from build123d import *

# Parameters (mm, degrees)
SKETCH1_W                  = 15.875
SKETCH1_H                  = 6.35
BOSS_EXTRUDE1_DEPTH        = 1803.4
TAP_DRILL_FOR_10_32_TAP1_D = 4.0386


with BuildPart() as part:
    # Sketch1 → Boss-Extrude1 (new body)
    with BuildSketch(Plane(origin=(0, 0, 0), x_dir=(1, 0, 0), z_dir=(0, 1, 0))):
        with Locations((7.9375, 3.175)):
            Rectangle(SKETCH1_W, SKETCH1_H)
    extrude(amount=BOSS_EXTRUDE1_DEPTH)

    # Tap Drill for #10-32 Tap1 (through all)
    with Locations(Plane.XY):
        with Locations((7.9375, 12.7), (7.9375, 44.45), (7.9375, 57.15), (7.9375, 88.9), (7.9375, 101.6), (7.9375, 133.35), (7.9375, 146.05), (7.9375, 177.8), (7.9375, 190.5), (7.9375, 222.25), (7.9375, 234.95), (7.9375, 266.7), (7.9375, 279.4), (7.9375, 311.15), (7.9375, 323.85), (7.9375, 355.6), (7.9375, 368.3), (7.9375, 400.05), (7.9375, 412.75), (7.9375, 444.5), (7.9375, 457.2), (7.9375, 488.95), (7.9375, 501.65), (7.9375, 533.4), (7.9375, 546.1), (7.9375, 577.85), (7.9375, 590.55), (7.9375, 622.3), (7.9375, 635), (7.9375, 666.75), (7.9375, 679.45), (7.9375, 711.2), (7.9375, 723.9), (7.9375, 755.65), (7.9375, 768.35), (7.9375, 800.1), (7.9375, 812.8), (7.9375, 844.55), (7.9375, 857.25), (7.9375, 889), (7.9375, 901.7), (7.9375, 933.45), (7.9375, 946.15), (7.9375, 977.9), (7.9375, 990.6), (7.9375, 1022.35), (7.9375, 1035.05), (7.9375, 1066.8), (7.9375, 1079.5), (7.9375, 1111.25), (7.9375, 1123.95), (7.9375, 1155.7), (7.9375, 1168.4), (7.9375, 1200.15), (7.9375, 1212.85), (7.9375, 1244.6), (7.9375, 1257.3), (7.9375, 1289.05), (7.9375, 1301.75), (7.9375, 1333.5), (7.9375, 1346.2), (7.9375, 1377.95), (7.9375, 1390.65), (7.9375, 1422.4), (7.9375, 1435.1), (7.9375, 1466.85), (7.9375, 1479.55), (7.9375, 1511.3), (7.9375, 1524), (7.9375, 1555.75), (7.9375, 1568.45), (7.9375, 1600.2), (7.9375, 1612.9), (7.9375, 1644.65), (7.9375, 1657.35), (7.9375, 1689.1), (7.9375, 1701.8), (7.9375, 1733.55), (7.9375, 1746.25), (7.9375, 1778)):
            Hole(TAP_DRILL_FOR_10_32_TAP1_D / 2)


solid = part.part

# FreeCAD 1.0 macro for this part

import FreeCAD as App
import Part
import Sketcher
from FreeCAD import Vector
Q = App.Units.Quantity


def add_polygon(sketch, points):
    """Adds a closed chain of lines whose ends are joined by coincident constraints."""
    first, n = sketch.GeometryCount, len(points)
    for a, b in zip(points, points[1:] + points[:1]):
        sketch.addGeometry(Part.LineSegment(App.Vector(*a, 0), App.Vector(*b, 0)), False)
    for i in range(n):
        sketch.addConstraint(Sketcher.Constraint("Coincident", first + i, 2, first + (i + 1) % n, 1))

doc = App.newDocument("Part")
body = doc.addObject("PartDesign::Body", "Body")

# Sketch on XZ plane
sketch1 = body.newObject("Sketcher::SketchObject", "Sketch")
sketch1.AttachmentSupport = (doc.getObject("XZ_Plane"), [""])
sketch1.MapMode = "FlatFace"
add_polygon(sketch1, [(0, -6.35), (0, 0), (15.875, 0), (15.875, -6.35)])  # lines 0-3
sketch1.addConstraint(Sketcher.Constraint("Vertical", 0))
sketch1.addConstraint(Sketcher.Constraint("Horizontal", 1))
sketch1.addConstraint(Sketcher.Constraint("Vertical", 2))
sketch1.addConstraint(Sketcher.Constraint("Horizontal", 3))
sketch1.addConstraint(Sketcher.Constraint("Coincident", 0, 2, -1, 1))
sketch1.addConstraint(Sketcher.Constraint("DistanceY", 0, 1, 0, 2, Q("0.25 in")))
sketch1.addConstraint(Sketcher.Constraint("DistanceX", 1, 1, 1, 2, Q("0.625 in")))
pad1 = body.newObject("PartDesign::Pad", "Pad")
pad1.Profile = sketch1
pad1.Length = Q("71 in")
pad1.Reversed = True

# Sketch on XY plane
sketch2 = body.newObject("Sketcher::SketchObject", "Sketch001")
sketch2.AttachmentSupport = (doc.getObject("XY_Plane"), [""])
sketch2.MapMode = "FlatFace"
sketch2.addGeometry(Part.Circle(Vector(7.9375, 12.7, 0), Vector(0, 0, 1), 2.0193), False)
sketch2.addGeometry(Part.Circle(Vector(7.9375, 44.45, 0), Vector(0, 0, 1), 2.0193), False)
sketch2.addGeometry(Part.Circle(Vector(7.9375, 57.15, 0), Vector(0, 0, 1), 2.0193), False)
sketch2.addGeometry(Part.Circle(Vector(7.9375, 88.9, 0), Vector(0, 0, 1), 2.0193), False)
sketch2.addGeometry(Part.Circle(Vector(7.9375, 101.6, 0), Vector(0, 0, 1), 2.0193), False)
sketch2.addGeometry(Part.Circle(Vector(7.9375, 133.35, 0), Vector(0, 0, 1), 2.0193), False)
sketch2.addGeometry(Part.Circle(Vector(7.9375, 146.05, 0), Vector(0, 0, 1), 2.0193), False)
sketch2.addGeometry(Part.Circle(Vector(7.9375, 177.8, 0), Vector(0, 0, 1), 2.0193), False)
sketch2.addGeometry(Part.Circle(Vector(7.9375, 190.5, 0), Vector(0, 0, 1), 2.0193), False)
sketch2.addGeometry(Part.Circle(Vector(7.9375, 222.25, 0), Vector(0, 0, 1), 2.0193), False)
sketch2.addGeometry(Part.Circle(Vector(7.9375, 234.95, 0), Vector(0, 0, 1), 2.0193), False)
sketch2.addGeometry(Part.Circle(Vector(7.9375, 266.7, 0), Vector(0, 0, 1), 2.0193), False)
sketch2.addGeometry(Part.Circle(Vector(7.9375, 279.4, 0), Vector(0, 0, 1), 2.0193), False)
sketch2.addGeometry(Part.Circle(Vector(7.9375, 311.15, 0), Vector(0, 0, 1), 2.0193), False)
sketch2.addGeometry(Part.Circle(Vector(7.9375, 323.85, 0), Vector(0, 0, 1), 2.0193), False)
sketch2.addGeometry(Part.Circle(Vector(7.9375, 355.6, 0), Vector(0, 0, 1), 2.0193), False)
sketch2.addGeometry(Part.Circle(Vector(7.9375, 368.3, 0), Vector(0, 0, 1), 2.0193), False)
sketch2.addGeometry(Part.Circle(Vector(7.9375, 400.05, 0), Vector(0, 0, 1), 2.0193), False)
sketch2.addGeometry(Part.Circle(Vector(7.9375, 412.75, 0), Vector(0, 0, 1), 2.0193), False)
sketch2.addGeometry(Part.Circle(Vector(7.9375, 444.5, 0), Vector(0, 0, 1), 2.0193), False)
sketch2.addGeometry(Part.Circle(Vector(7.9375, 457.2, 0), Vector(0, 0, 1), 2.0193), False)
sketch2.addGeometry(Part.Circle(Vector(7.9375, 488.95, 0), Vector(0, 0, 1), 2.0193), False)
sketch2.addGeometry(Part.Circle(Vector(7.9375, 501.65, 0), Vector(0, 0, 1), 2.0193), False)
sketch2.addGeometry(Part.Circle(Vector(7.9375, 533.4, 0), Vector(0, 0, 1), 2.0193), False)
sketch2.addGeometry(Part.Circle(Vector(7.9375, 546.1, 0), Vector(0, 0, 1), 2.0193), False)
sketch2.addGeometry(Part.Circle(Vector(7.9375, 577.85, 0), Vector(0, 0, 1), 2.0193), False)
sketch2.addGeometry(Part.Circle(Vector(7.9375, 590.55, 0), Vector(0, 0, 1), 2.0193), False)
sketch2.addGeometry(Part.Circle(Vector(7.9375, 622.3, 0), Vector(0, 0, 1), 2.0193), False)
sketch2.addGeometry(Part.Circle(Vector(7.9375, 635, 0), Vector(0, 0, 1), 2.0193), False)
sketch2.addGeometry(Part.Circle(Vector(7.9375, 666.75, 0), Vector(0, 0, 1), 2.0193), False)
sketch2.addGeometry(Part.Circle(Vector(7.9375, 679.45, 0), Vector(0, 0, 1), 2.0193), False)
sketch2.addGeometry(Part.Circle(Vector(7.9375, 711.2, 0), Vector(0, 0, 1), 2.0193), False)
sketch2.addGeometry(Part.Circle(Vector(7.9375, 723.9, 0), Vector(0, 0, 1), 2.0193), False)
sketch2.addGeometry(Part.Circle(Vector(7.9375, 755.65, 0), Vector(0, 0, 1), 2.0193), False)
sketch2.addGeometry(Part.Circle(Vector(7.9375, 768.35, 0), Vector(0, 0, 1), 2.0193), False)
sketch2.addGeometry(Part.Circle(Vector(7.9375, 800.1, 0), Vector(0, 0, 1), 2.0193), False)
sketch2.addGeometry(Part.Circle(Vector(7.9375, 812.8, 0), Vector(0, 0, 1), 2.0193), False)
sketch2.addGeometry(Part.Circle(Vector(7.9375, 844.55, 0), Vector(0, 0, 1), 2.0193), False)
sketch2.addGeometry(Part.Circle(Vector(7.9375, 857.25, 0), Vector(0, 0, 1), 2.0193), False)
sketch2.addGeometry(Part.Circle(Vector(7.9375, 889, 0), Vector(0, 0, 1), 2.0193), False)
sketch2.addGeometry(Part.Circle(Vector(7.9375, 901.7, 0), Vector(0, 0, 1), 2.0193), False)
sketch2.addGeometry(Part.Circle(Vector(7.9375, 933.45, 0), Vector(0, 0, 1), 2.0193), False)
sketch2.addGeometry(Part.Circle(Vector(7.9375, 946.15, 0), Vector(0, 0, 1), 2.0193), False)
sketch2.addGeometry(Part.Circle(Vector(7.9375, 977.9, 0), Vector(0, 0, 1), 2.0193), False)
sketch2.addGeometry(Part.Circle(Vector(7.9375, 990.6, 0), Vector(0, 0, 1), 2.0193), False)
sketch2.addGeometry(Part.Circle(Vector(7.9375, 1022.35, 0), Vector(0, 0, 1), 2.0193), False)
sketch2.addGeometry(Part.Circle(Vector(7.9375, 1035.05, 0), Vector(0, 0, 1), 2.0193), False)
sketch2.addGeometry(Part.Circle(Vector(7.9375, 1066.8, 0), Vector(0, 0, 1), 2.0193), False)
sketch2.addGeometry(Part.Circle(Vector(7.9375, 1079.5, 0), Vector(0, 0, 1), 2.0193), False)
sketch2.addGeometry(Part.Circle(Vector(7.9375, 1111.25, 0), Vector(0, 0, 1), 2.0193), False)
sketch2.addGeometry(Part.Circle(Vector(7.9375, 1123.95, 0), Vector(0, 0, 1), 2.0193), False)
sketch2.addGeometry(Part.Circle(Vector(7.9375, 1155.7, 0), Vector(0, 0, 1), 2.0193), False)
sketch2.addGeometry(Part.Circle(Vector(7.9375, 1168.4, 0), Vector(0, 0, 1), 2.0193), False)
sketch2.addGeometry(Part.Circle(Vector(7.9375, 1200.15, 0), Vector(0, 0, 1), 2.0193), False)
sketch2.addGeometry(Part.Circle(Vector(7.9375, 1212.85, 0), Vector(0, 0, 1), 2.0193), False)
sketch2.addGeometry(Part.Circle(Vector(7.9375, 1244.6, 0), Vector(0, 0, 1), 2.0193), False)
sketch2.addGeometry(Part.Circle(Vector(7.9375, 1257.3, 0), Vector(0, 0, 1), 2.0193), False)
sketch2.addGeometry(Part.Circle(Vector(7.9375, 1289.05, 0), Vector(0, 0, 1), 2.0193), False)
sketch2.addGeometry(Part.Circle(Vector(7.9375, 1301.75, 0), Vector(0, 0, 1), 2.0193), False)
sketch2.addGeometry(Part.Circle(Vector(7.9375, 1333.5, 0), Vector(0, 0, 1), 2.0193), False)
sketch2.addGeometry(Part.Circle(Vector(7.9375, 1346.2, 0), Vector(0, 0, 1), 2.0193), False)
sketch2.addGeometry(Part.Circle(Vector(7.9375, 1377.95, 0), Vector(0, 0, 1), 2.0193), False)
sketch2.addGeometry(Part.Circle(Vector(7.9375, 1390.65, 0), Vector(0, 0, 1), 2.0193), False)
sketch2.addGeometry(Part.Circle(Vector(7.9375, 1422.4, 0), Vector(0, 0, 1), 2.0193), False)
sketch2.addGeometry(Part.Circle(Vector(7.9375, 1435.1, 0), Vector(0, 0, 1), 2.0193), False)
sketch2.addGeometry(Part.Circle(Vector(7.9375, 1466.85, 0), Vector(0, 0, 1), 2.0193), False)
sketch2.addGeometry(Part.Circle(Vector(7.9375, 1479.55, 0), Vector(0, 0, 1), 2.0193), False)
sketch2.addGeometry(Part.Circle(Vector(7.9375, 1511.3, 0), Vector(0, 0, 1), 2.0193), False)
sketch2.addGeometry(Part.Circle(Vector(7.9375, 1524, 0), Vector(0, 0, 1), 2.0193), False)
sketch2.addGeometry(Part.Circle(Vector(7.9375, 1555.75, 0), Vector(0, 0, 1), 2.0193), False)
sketch2.addGeometry(Part.Circle(Vector(7.9375, 1568.45, 0), Vector(0, 0, 1), 2.0193), False)
sketch2.addGeometry(Part.Circle(Vector(7.9375, 1600.2, 0), Vector(0, 0, 1), 2.0193), False)
sketch2.addGeometry(Part.Circle(Vector(7.9375, 1612.9, 0), Vector(0, 0, 1), 2.0193), False)
sketch2.addGeometry(Part.Circle(Vector(7.9375, 1644.65, 0), Vector(0, 0, 1), 2.0193), False)
sketch2.addGeometry(Part.Circle(Vector(7.9375, 1657.35, 0), Vector(0, 0, 1), 2.0193), False)
sketch2.addGeometry(Part.Circle(Vector(7.9375, 1689.1, 0), Vector(0, 0, 1), 2.0193), False)
sketch2.addGeometry(Part.Circle(Vector(7.9375, 1701.8, 0), Vector(0, 0, 1), 2.0193), False)
sketch2.addGeometry(Part.Circle(Vector(7.9375, 1733.55, 0), Vector(0, 0, 1), 2.0193), False)
sketch2.addGeometry(Part.Circle(Vector(7.9375, 1746.25, 0), Vector(0, 0, 1), 2.0193), False)
sketch2.addGeometry(Part.Circle(Vector(7.9375, 1778, 0), Vector(0, 0, 1), 2.0193), False)
sketch2.addConstraint(Sketcher.Constraint("Equal", 0, 1))
sketch2.addConstraint(Sketcher.Constraint("Equal", 1, 2))
sketch2.addConstraint(Sketcher.Constraint("Equal", 2, 3))
sketch2.addConstraint(Sketcher.Constraint("Equal", 3, 4))
sketch2.addConstraint(Sketcher.Constraint("Equal", 4, 5))
sketch2.addConstraint(Sketcher.Constraint("Equal", 5, 6))
sketch2.addConstraint(Sketcher.Constraint("Equal", 6, 7))
sketch2.addConstraint(Sketcher.Constraint("Equal", 7, 8))
sketch2.addConstraint(Sketcher.Constraint("Equal", 8, 9))
sketch2.addConstraint(Sketcher.Constraint("Equal", 9, 10))
sketch2.addConstraint(Sketcher.Constraint("Equal", 10, 11))
sketch2.addConstraint(Sketcher.Constraint("Equal", 11, 12))
sketch2.addConstraint(Sketcher.Constraint("Equal", 12, 13))
sketch2.addConstraint(Sketcher.Constraint("Equal", 13, 14))
sketch2.addConstraint(Sketcher.Constraint("Equal", 14, 15))
sketch2.addConstraint(Sketcher.Constraint("Equal", 15, 16))
sketch2.addConstraint(Sketcher.Constraint("Equal", 16, 17))
sketch2.addConstraint(Sketcher.Constraint("Equal", 17, 18))
sketch2.addConstraint(Sketcher.Constraint("Equal", 18, 19))
sketch2.addConstraint(Sketcher.Constraint("Equal", 19, 20))
sketch2.addConstraint(Sketcher.Constraint("Equal", 20, 21))
sketch2.addConstraint(Sketcher.Constraint("Equal", 21, 22))
sketch2.addConstraint(Sketcher.Constraint("Equal", 22, 23))
sketch2.addConstraint(Sketcher.Constraint("Equal", 23, 24))
sketch2.addConstraint(Sketcher.Constraint("Equal", 24, 25))
sketch2.addConstraint(Sketcher.Constraint("Equal", 25, 26))
sketch2.addConstraint(Sketcher.Constraint("Equal", 26, 27))
sketch2.addConstraint(Sketcher.Constraint("Equal", 27, 28))
sketch2.addConstraint(Sketcher.Constraint("Equal", 28, 29))
sketch2.addConstraint(Sketcher.Constraint("Equal", 29, 30))
sketch2.addConstraint(Sketcher.Constraint("Equal", 30, 31))
sketch2.addConstraint(Sketcher.Constraint("Equal", 31, 32))
sketch2.addConstraint(Sketcher.Constraint("Equal", 32, 33))
sketch2.addConstraint(Sketcher.Constraint("Equal", 33, 34))
sketch2.addConstraint(Sketcher.Constraint("Equal", 34, 35))
sketch2.addConstraint(Sketcher.Constraint("Equal", 35, 36))
sketch2.addConstraint(Sketcher.Constraint("Equal", 36, 37))
sketch2.addConstraint(Sketcher.Constraint("Equal", 37, 38))
sketch2.addConstraint(Sketcher.Constraint("Equal", 38, 39))
sketch2.addConstraint(Sketcher.Constraint("Equal", 39, 40))
sketch2.addConstraint(Sketcher.Constraint("Equal", 40, 41))
sketch2.addConstraint(Sketcher.Constraint("Equal", 41, 42))
sketch2.addConstraint(Sketcher.Constraint("Equal", 42, 43))
sketch2.addConstraint(Sketcher.Constraint("Equal", 43, 44))
sketch2.addConstraint(Sketcher.Constraint("Equal", 44, 45))
sketch2.addConstraint(Sketcher.Constraint("Equal", 45, 46))
sketch2.addConstraint(Sketcher.Constraint("Equal", 46, 47))
sketch2.addConstraint(Sketcher.Constraint("Equal", 47, 48))
sketch2.addConstraint(Sketcher.Constraint("Equal", 48, 49))
sketch2.addConstraint(Sketcher.Constraint("Equal", 49, 50))
sketch2.addConstraint(Sketcher.Constraint("Equal", 50, 51))
sketch2.addConstraint(Sketcher.Constraint("Equal", 51, 52))
sketch2.addConstraint(Sketcher.Constraint("Equal", 52, 53))
sketch2.addConstraint(Sketcher.Constraint("Equal", 53, 54))
sketch2.addConstraint(Sketcher.Constraint("Equal", 54, 55))
sketch2.addConstraint(Sketcher.Constraint("Equal", 55, 56))
sketch2.addConstraint(Sketcher.Constraint("Equal", 56, 57))
sketch2.addConstraint(Sketcher.Constraint("Equal", 57, 58))
sketch2.addConstraint(Sketcher.Constraint("Equal", 58, 59))
sketch2.addConstraint(Sketcher.Constraint("Equal", 59, 60))
sketch2.addConstraint(Sketcher.Constraint("Equal", 60, 61))
sketch2.addConstraint(Sketcher.Constraint("Equal", 61, 62))
sketch2.addConstraint(Sketcher.Constraint("Equal", 62, 63))
sketch2.addConstraint(Sketcher.Constraint("Equal", 63, 64))
sketch2.addConstraint(Sketcher.Constraint("Equal", 64, 65))
sketch2.addConstraint(Sketcher.Constraint("Equal", 65, 66))
sketch2.addConstraint(Sketcher.Constraint("Equal", 66, 67))
sketch2.addConstraint(Sketcher.Constraint("Equal", 67, 68))
sketch2.addConstraint(Sketcher.Constraint("Equal", 68, 69))
sketch2.addConstraint(Sketcher.Constraint("Equal", 69, 70))
sketch2.addConstraint(Sketcher.Constraint("Equal", 70, 71))
sketch2.addConstraint(Sketcher.Constraint("Equal", 71, 72))
sketch2.addConstraint(Sketcher.Constraint("Equal", 72, 73))
sketch2.addConstraint(Sketcher.Constraint("Equal", 73, 74))
sketch2.addConstraint(Sketcher.Constraint("Equal", 74, 75))
sketch2.addConstraint(Sketcher.Constraint("Equal", 75, 76))
sketch2.addConstraint(Sketcher.Constraint("Equal", 76, 77))
sketch2.addConstraint(Sketcher.Constraint("Equal", 77, 78))
sketch2.addConstraint(Sketcher.Constraint("Equal", 78, 79))
sketch2.addConstraint(Sketcher.Constraint("Vertical", 0, 3, 1, 3))
sketch2.addConstraint(Sketcher.Constraint("Vertical", 1, 3, 2, 3))
sketch2.addConstraint(Sketcher.Constraint("Vertical", 2, 3, 3, 3))
sketch2.addConstraint(Sketcher.Constraint("Vertical", 3, 3, 4, 3))
sketch2.addConstraint(Sketcher.Constraint("Vertical", 4, 3, 5, 3))
sketch2.addConstraint(Sketcher.Constraint("Vertical", 5, 3, 6, 3))
sketch2.addConstraint(Sketcher.Constraint("Vertical", 6, 3, 7, 3))
sketch2.addConstraint(Sketcher.Constraint("Vertical", 7, 3, 8, 3))
sketch2.addConstraint(Sketcher.Constraint("Vertical", 8, 3, 9, 3))
sketch2.addConstraint(Sketcher.Constraint("Vertical", 9, 3, 10, 3))
sketch2.addConstraint(Sketcher.Constraint("Vertical", 10, 3, 11, 3))
sketch2.addConstraint(Sketcher.Constraint("Vertical", 11, 3, 12, 3))
sketch2.addConstraint(Sketcher.Constraint("Vertical", 12, 3, 13, 3))
sketch2.addConstraint(Sketcher.Constraint("Vertical", 13, 3, 14, 3))
sketch2.addConstraint(Sketcher.Constraint("Vertical", 14, 3, 15, 3))
sketch2.addConstraint(Sketcher.Constraint("Vertical", 15, 3, 16, 3))
sketch2.addConstraint(Sketcher.Constraint("Vertical", 16, 3, 17, 3))
sketch2.addConstraint(Sketcher.Constraint("Vertical", 17, 3, 18, 3))
sketch2.addConstraint(Sketcher.Constraint("Vertical", 18, 3, 19, 3))
sketch2.addConstraint(Sketcher.Constraint("Vertical", 19, 3, 20, 3))
sketch2.addConstraint(Sketcher.Constraint("Vertical", 20, 3, 21, 3))
sketch2.addConstraint(Sketcher.Constraint("Vertical", 21, 3, 22, 3))
sketch2.addConstraint(Sketcher.Constraint("Vertical", 22, 3, 23, 3))
sketch2.addConstraint(Sketcher.Constraint("Vertical", 23, 3, 24, 3))
sketch2.addConstraint(Sketcher.Constraint("Vertical", 24, 3, 25, 3))
sketch2.addConstraint(Sketcher.Constraint("Vertical", 25, 3, 26, 3))
sketch2.addConstraint(Sketcher.Constraint("Vertical", 26, 3, 27, 3))
sketch2.addConstraint(Sketcher.Constraint("Vertical", 27, 3, 28, 3))
sketch2.addConstraint(Sketcher.Constraint("Vertical", 28, 3, 29, 3))
sketch2.addConstraint(Sketcher.Constraint("Vertical", 29, 3, 30, 3))
sketch2.addConstraint(Sketcher.Constraint("Vertical", 30, 3, 31, 3))
sketch2.addConstraint(Sketcher.Constraint("Vertical", 31, 3, 32, 3))
sketch2.addConstraint(Sketcher.Constraint("Vertical", 32, 3, 33, 3))
sketch2.addConstraint(Sketcher.Constraint("Vertical", 33, 3, 34, 3))
sketch2.addConstraint(Sketcher.Constraint("Vertical", 34, 3, 35, 3))
sketch2.addConstraint(Sketcher.Constraint("Vertical", 35, 3, 36, 3))
sketch2.addConstraint(Sketcher.Constraint("Vertical", 36, 3, 37, 3))
sketch2.addConstraint(Sketcher.Constraint("Vertical", 37, 3, 38, 3))
sketch2.addConstraint(Sketcher.Constraint("Vertical", 38, 3, 39, 3))
sketch2.addConstraint(Sketcher.Constraint("Vertical", 39, 3, 40, 3))
sketch2.addConstraint(Sketcher.Constraint("Vertical", 40, 3, 41, 3))
sketch2.addConstraint(Sketcher.Constraint("Vertical", 41, 3, 42, 3))
sketch2.addConstraint(Sketcher.Constraint("Vertical", 42, 3, 43, 3))
sketch2.addConstraint(Sketcher.Constraint("Vertical", 43, 3, 44, 3))
sketch2.addConstraint(Sketcher.Constraint("Vertical", 44, 3, 45, 3))
sketch2.addConstraint(Sketcher.Constraint("Vertical", 45, 3, 46, 3))
sketch2.addConstraint(Sketcher.Constraint("Vertical", 46, 3, 47, 3))
sketch2.addConstraint(Sketcher.Constraint("Vertical", 47, 3, 48, 3))
sketch2.addConstraint(Sketcher.Constraint("Vertical", 48, 3, 49, 3))
sketch2.addConstraint(Sketcher.Constraint("Vertical", 49, 3, 50, 3))
sketch2.addConstraint(Sketcher.Constraint("Vertical", 50, 3, 51, 3))
sketch2.addConstraint(Sketcher.Constraint("Vertical", 51, 3, 52, 3))
sketch2.addConstraint(Sketcher.Constraint("Vertical", 52, 3, 53, 3))
sketch2.addConstraint(Sketcher.Constraint("Vertical", 53, 3, 54, 3))
sketch2.addConstraint(Sketcher.Constraint("Vertical", 54, 3, 55, 3))
sketch2.addConstraint(Sketcher.Constraint("Vertical", 55, 3, 56, 3))
sketch2.addConstraint(Sketcher.Constraint("Vertical", 56, 3, 57, 3))
sketch2.addConstraint(Sketcher.Constraint("Vertical", 57, 3, 58, 3))
sketch2.addConstraint(Sketcher.Constraint("Vertical", 58, 3, 59, 3))
sketch2.addConstraint(Sketcher.Constraint("Vertical", 59, 3, 60, 3))
sketch2.addConstraint(Sketcher.Constraint("Vertical", 60, 3, 61, 3))
sketch2.addConstraint(Sketcher.Constraint("Vertical", 61, 3, 62, 3))
sketch2.addConstraint(Sketcher.Constraint("Vertical", 62, 3, 63, 3))
sketch2.addConstraint(Sketcher.Constraint("Vertical", 63, 3, 64, 3))
sketch2.addConstraint(Sketcher.Constraint("Vertical", 64, 3, 65, 3))
sketch2.addConstraint(Sketcher.Constraint("Vertical", 65, 3, 66, 3))
sketch2.addConstraint(Sketcher.Constraint("Vertical", 66, 3, 67, 3))
sketch2.addConstraint(Sketcher.Constraint("Vertical", 67, 3, 68, 3))
sketch2.addConstraint(Sketcher.Constraint("Vertical", 68, 3, 69, 3))
sketch2.addConstraint(Sketcher.Constraint("Vertical", 69, 3, 70, 3))
sketch2.addConstraint(Sketcher.Constraint("Vertical", 70, 3, 71, 3))
sketch2.addConstraint(Sketcher.Constraint("Vertical", 71, 3, 72, 3))
sketch2.addConstraint(Sketcher.Constraint("Vertical", 72, 3, 73, 3))
sketch2.addConstraint(Sketcher.Constraint("Vertical", 73, 3, 74, 3))
sketch2.addConstraint(Sketcher.Constraint("Vertical", 74, 3, 75, 3))
sketch2.addConstraint(Sketcher.Constraint("Vertical", 75, 3, 76, 3))
sketch2.addConstraint(Sketcher.Constraint("Vertical", 76, 3, 77, 3))
sketch2.addConstraint(Sketcher.Constraint("Vertical", 77, 3, 78, 3))
sketch2.addConstraint(Sketcher.Constraint("Vertical", 78, 3, 79, 3))
sketch2.addConstraint(Sketcher.Constraint("Diameter", 0, Q("0.159 in")))
sketch2.addConstraint(Sketcher.Constraint("DistanceY", -1, 1, 4, 3, Q("4 in")))
sketch2.addConstraint(Sketcher.Constraint("DistanceY", -1, 1, 7, 3, Q("7 in")))
sketch2.addConstraint(Sketcher.Constraint("DistanceY", -1, 1, 12, 3, Q("11 in")))
sketch2.addConstraint(Sketcher.Constraint("DistanceY", -1, 1, 15, 3, Q("14 in")))
sketch2.addConstraint(Sketcher.Constraint("DistanceY", -1, 1, 20, 3, Q("18 in")))
sketch2.addConstraint(Sketcher.Constraint("DistanceY", -1, 1, 23, 3, Q("21 in")))
sketch2.addConstraint(Sketcher.Constraint("DistanceY", -1, 1, 28, 3, Q("25 in")))
sketch2.addConstraint(Sketcher.Constraint("DistanceY", -1, 1, 31, 3, Q("28 in")))
sketch2.addConstraint(Sketcher.Constraint("DistanceY", -1, 1, 36, 3, Q("32 in")))
sketch2.addConstraint(Sketcher.Constraint("DistanceY", -1, 1, 39, 3, Q("35 in")))
sketch2.addConstraint(Sketcher.Constraint("DistanceY", -1, 1, 44, 3, Q("39 in")))
sketch2.addConstraint(Sketcher.Constraint("DistanceY", -1, 1, 47, 3, Q("42 in")))
sketch2.addConstraint(Sketcher.Constraint("DistanceY", -1, 1, 52, 3, Q("46 in")))
sketch2.addConstraint(Sketcher.Constraint("DistanceY", -1, 1, 55, 3, Q("49 in")))
sketch2.addConstraint(Sketcher.Constraint("DistanceY", -1, 1, 60, 3, Q("53 in")))
sketch2.addConstraint(Sketcher.Constraint("DistanceY", -1, 1, 63, 3, Q("56 in")))
sketch2.addConstraint(Sketcher.Constraint("DistanceY", -1, 1, 68, 3, Q("60 in")))
sketch2.addConstraint(Sketcher.Constraint("DistanceY", -1, 1, 71, 3, Q("63 in")))
sketch2.addConstraint(Sketcher.Constraint("DistanceY", -1, 1, 76, 3, Q("67 in")))
sketch2.addConstraint(Sketcher.Constraint("DistanceY", -1, 1, 79, 3, Q("70 in")))
sketch2.addConstraint(Sketcher.Constraint("DistanceY", -1, 1, 0, 3, Q("0.5 in")))
sketch2.addConstraint(Sketcher.Constraint("DistanceY", -1, 1, 3, 3, Q("3.5 in")))
sketch2.addConstraint(Sketcher.Constraint("DistanceY", -1, 1, 8, 3, Q("7.5 in")))
sketch2.addConstraint(Sketcher.Constraint("DistanceY", -1, 1, 11, 3, Q("10.5 in")))
sketch2.addConstraint(Sketcher.Constraint("DistanceY", -1, 1, 16, 3, Q("14.5 in")))
sketch2.addConstraint(Sketcher.Constraint("DistanceY", -1, 1, 19, 3, Q("17.5 in")))
sketch2.addConstraint(Sketcher.Constraint("DistanceY", -1, 1, 24, 3, Q("21.5 in")))
sketch2.addConstraint(Sketcher.Constraint("DistanceY", -1, 1, 27, 3, Q("24.5 in")))
sketch2.addConstraint(Sketcher.Constraint("DistanceY", -1, 1, 32, 3, Q("28.5 in")))
sketch2.addConstraint(Sketcher.Constraint("DistanceY", -1, 1, 35, 3, Q("31.5 in")))
sketch2.addConstraint(Sketcher.Constraint("DistanceY", -1, 1, 40, 3, Q("35.5 in")))
sketch2.addConstraint(Sketcher.Constraint("DistanceY", -1, 1, 43, 3, Q("38.5 in")))
sketch2.addConstraint(Sketcher.Constraint("DistanceY", -1, 1, 48, 3, Q("42.5 in")))
sketch2.addConstraint(Sketcher.Constraint("DistanceY", -1, 1, 51, 3, Q("45.5 in")))
sketch2.addConstraint(Sketcher.Constraint("DistanceY", -1, 1, 56, 3, Q("49.5 in")))
sketch2.addConstraint(Sketcher.Constraint("DistanceY", -1, 1, 59, 3, Q("52.5 in")))
sketch2.addConstraint(Sketcher.Constraint("DistanceY", -1, 1, 64, 3, Q("56.5 in")))
sketch2.addConstraint(Sketcher.Constraint("DistanceY", -1, 1, 67, 3, Q("59.5 in")))
sketch2.addConstraint(Sketcher.Constraint("DistanceY", -1, 1, 72, 3, Q("63.5 in")))
sketch2.addConstraint(Sketcher.Constraint("DistanceY", -1, 1, 75, 3, Q("66.5 in")))
sketch2.addConstraint(Sketcher.Constraint("DistanceY", -1, 1, 1, 3, Q("1.75 in")))
sketch2.addConstraint(Sketcher.Constraint("DistanceY", -1, 1, 2, 3, Q("2.25 in")))
sketch2.addConstraint(Sketcher.Constraint("DistanceY", -1, 1, 5, 3, Q("5.25 in")))
sketch2.addConstraint(Sketcher.Constraint("DistanceY", -1, 1, 6, 3, Q("5.75 in")))
sketch2.addConstraint(Sketcher.Constraint("DistanceY", -1, 1, 9, 3, Q("8.75 in")))
sketch2.addConstraint(Sketcher.Constraint("DistanceY", -1, 1, 10, 3, Q("9.25 in")))
sketch2.addConstraint(Sketcher.Constraint("DistanceY", -1, 1, 13, 3, Q("12.25 in")))
sketch2.addConstraint(Sketcher.Constraint("DistanceY", -1, 1, 14, 3, Q("12.75 in")))
sketch2.addConstraint(Sketcher.Constraint("DistanceY", -1, 1, 17, 3, Q("15.75 in")))
sketch2.addConstraint(Sketcher.Constraint("DistanceY", -1, 1, 18, 3, Q("16.25 in")))
sketch2.addConstraint(Sketcher.Constraint("DistanceY", -1, 1, 21, 3, Q("19.25 in")))
sketch2.addConstraint(Sketcher.Constraint("DistanceY", -1, 1, 22, 3, Q("19.75 in")))
sketch2.addConstraint(Sketcher.Constraint("DistanceY", -1, 1, 25, 3, Q("22.75 in")))
sketch2.addConstraint(Sketcher.Constraint("DistanceY", -1, 1, 26, 3, Q("23.25 in")))
sketch2.addConstraint(Sketcher.Constraint("DistanceY", -1, 1, 29, 3, Q("26.25 in")))
sketch2.addConstraint(Sketcher.Constraint("DistanceY", -1, 1, 30, 3, Q("26.75 in")))
sketch2.addConstraint(Sketcher.Constraint("DistanceY", -1, 1, 33, 3, Q("29.75 in")))
sketch2.addConstraint(Sketcher.Constraint("DistanceY", -1, 1, 34, 3, Q("30.25 in")))
sketch2.addConstraint(Sketcher.Constraint("DistanceY", -1, 1, 37, 3, Q("33.25 in")))
sketch2.addConstraint(Sketcher.Constraint("DistanceY", -1, 1, 38, 3, Q("33.75 in")))
sketch2.addConstraint(Sketcher.Constraint("DistanceY", -1, 1, 41, 3, Q("36.75 in")))
sketch2.addConstraint(Sketcher.Constraint("DistanceY", -1, 1, 42, 3, Q("37.25 in")))
sketch2.addConstraint(Sketcher.Constraint("DistanceY", -1, 1, 45, 3, Q("40.25 in")))
sketch2.addConstraint(Sketcher.Constraint("DistanceY", -1, 1, 46, 3, Q("40.75 in")))
sketch2.addConstraint(Sketcher.Constraint("DistanceY", -1, 1, 49, 3, Q("43.75 in")))
sketch2.addConstraint(Sketcher.Constraint("DistanceY", -1, 1, 50, 3, Q("44.25 in")))
sketch2.addConstraint(Sketcher.Constraint("DistanceY", -1, 1, 53, 3, Q("47.25 in")))
sketch2.addConstraint(Sketcher.Constraint("DistanceY", -1, 1, 54, 3, Q("47.75 in")))
sketch2.addConstraint(Sketcher.Constraint("DistanceY", -1, 1, 57, 3, Q("50.75 in")))
sketch2.addConstraint(Sketcher.Constraint("DistanceY", -1, 1, 58, 3, Q("51.25 in")))
sketch2.addConstraint(Sketcher.Constraint("DistanceY", -1, 1, 61, 3, Q("54.25 in")))
sketch2.addConstraint(Sketcher.Constraint("DistanceY", -1, 1, 62, 3, Q("54.75 in")))
sketch2.addConstraint(Sketcher.Constraint("DistanceY", -1, 1, 65, 3, Q("57.75 in")))
sketch2.addConstraint(Sketcher.Constraint("DistanceY", -1, 1, 66, 3, Q("58.25 in")))
sketch2.addConstraint(Sketcher.Constraint("DistanceY", -1, 1, 69, 3, Q("61.25 in")))
sketch2.addConstraint(Sketcher.Constraint("DistanceY", -1, 1, 70, 3, Q("61.75 in")))
sketch2.addConstraint(Sketcher.Constraint("DistanceY", -1, 1, 73, 3, Q("64.75 in")))
sketch2.addConstraint(Sketcher.Constraint("DistanceY", -1, 1, 74, 3, Q("65.25 in")))
sketch2.addConstraint(Sketcher.Constraint("DistanceY", -1, 1, 77, 3, Q("68.25 in")))
sketch2.addConstraint(Sketcher.Constraint("DistanceY", -1, 1, 78, 3, Q("68.75 in")))
sketch2.addConstraint(Sketcher.Constraint("DistanceX", -1, 1, 0, 3, Q("0.3125 in")))
doc.recompute()
hole = body.newObject("PartDesign::Hole", "Hole")
hole.Profile = sketch2
hole.ThreadType = "None"
hole.Diameter = Q("0.159 in")
hole.DepthType = "ThroughAll"

doc.recompute()
